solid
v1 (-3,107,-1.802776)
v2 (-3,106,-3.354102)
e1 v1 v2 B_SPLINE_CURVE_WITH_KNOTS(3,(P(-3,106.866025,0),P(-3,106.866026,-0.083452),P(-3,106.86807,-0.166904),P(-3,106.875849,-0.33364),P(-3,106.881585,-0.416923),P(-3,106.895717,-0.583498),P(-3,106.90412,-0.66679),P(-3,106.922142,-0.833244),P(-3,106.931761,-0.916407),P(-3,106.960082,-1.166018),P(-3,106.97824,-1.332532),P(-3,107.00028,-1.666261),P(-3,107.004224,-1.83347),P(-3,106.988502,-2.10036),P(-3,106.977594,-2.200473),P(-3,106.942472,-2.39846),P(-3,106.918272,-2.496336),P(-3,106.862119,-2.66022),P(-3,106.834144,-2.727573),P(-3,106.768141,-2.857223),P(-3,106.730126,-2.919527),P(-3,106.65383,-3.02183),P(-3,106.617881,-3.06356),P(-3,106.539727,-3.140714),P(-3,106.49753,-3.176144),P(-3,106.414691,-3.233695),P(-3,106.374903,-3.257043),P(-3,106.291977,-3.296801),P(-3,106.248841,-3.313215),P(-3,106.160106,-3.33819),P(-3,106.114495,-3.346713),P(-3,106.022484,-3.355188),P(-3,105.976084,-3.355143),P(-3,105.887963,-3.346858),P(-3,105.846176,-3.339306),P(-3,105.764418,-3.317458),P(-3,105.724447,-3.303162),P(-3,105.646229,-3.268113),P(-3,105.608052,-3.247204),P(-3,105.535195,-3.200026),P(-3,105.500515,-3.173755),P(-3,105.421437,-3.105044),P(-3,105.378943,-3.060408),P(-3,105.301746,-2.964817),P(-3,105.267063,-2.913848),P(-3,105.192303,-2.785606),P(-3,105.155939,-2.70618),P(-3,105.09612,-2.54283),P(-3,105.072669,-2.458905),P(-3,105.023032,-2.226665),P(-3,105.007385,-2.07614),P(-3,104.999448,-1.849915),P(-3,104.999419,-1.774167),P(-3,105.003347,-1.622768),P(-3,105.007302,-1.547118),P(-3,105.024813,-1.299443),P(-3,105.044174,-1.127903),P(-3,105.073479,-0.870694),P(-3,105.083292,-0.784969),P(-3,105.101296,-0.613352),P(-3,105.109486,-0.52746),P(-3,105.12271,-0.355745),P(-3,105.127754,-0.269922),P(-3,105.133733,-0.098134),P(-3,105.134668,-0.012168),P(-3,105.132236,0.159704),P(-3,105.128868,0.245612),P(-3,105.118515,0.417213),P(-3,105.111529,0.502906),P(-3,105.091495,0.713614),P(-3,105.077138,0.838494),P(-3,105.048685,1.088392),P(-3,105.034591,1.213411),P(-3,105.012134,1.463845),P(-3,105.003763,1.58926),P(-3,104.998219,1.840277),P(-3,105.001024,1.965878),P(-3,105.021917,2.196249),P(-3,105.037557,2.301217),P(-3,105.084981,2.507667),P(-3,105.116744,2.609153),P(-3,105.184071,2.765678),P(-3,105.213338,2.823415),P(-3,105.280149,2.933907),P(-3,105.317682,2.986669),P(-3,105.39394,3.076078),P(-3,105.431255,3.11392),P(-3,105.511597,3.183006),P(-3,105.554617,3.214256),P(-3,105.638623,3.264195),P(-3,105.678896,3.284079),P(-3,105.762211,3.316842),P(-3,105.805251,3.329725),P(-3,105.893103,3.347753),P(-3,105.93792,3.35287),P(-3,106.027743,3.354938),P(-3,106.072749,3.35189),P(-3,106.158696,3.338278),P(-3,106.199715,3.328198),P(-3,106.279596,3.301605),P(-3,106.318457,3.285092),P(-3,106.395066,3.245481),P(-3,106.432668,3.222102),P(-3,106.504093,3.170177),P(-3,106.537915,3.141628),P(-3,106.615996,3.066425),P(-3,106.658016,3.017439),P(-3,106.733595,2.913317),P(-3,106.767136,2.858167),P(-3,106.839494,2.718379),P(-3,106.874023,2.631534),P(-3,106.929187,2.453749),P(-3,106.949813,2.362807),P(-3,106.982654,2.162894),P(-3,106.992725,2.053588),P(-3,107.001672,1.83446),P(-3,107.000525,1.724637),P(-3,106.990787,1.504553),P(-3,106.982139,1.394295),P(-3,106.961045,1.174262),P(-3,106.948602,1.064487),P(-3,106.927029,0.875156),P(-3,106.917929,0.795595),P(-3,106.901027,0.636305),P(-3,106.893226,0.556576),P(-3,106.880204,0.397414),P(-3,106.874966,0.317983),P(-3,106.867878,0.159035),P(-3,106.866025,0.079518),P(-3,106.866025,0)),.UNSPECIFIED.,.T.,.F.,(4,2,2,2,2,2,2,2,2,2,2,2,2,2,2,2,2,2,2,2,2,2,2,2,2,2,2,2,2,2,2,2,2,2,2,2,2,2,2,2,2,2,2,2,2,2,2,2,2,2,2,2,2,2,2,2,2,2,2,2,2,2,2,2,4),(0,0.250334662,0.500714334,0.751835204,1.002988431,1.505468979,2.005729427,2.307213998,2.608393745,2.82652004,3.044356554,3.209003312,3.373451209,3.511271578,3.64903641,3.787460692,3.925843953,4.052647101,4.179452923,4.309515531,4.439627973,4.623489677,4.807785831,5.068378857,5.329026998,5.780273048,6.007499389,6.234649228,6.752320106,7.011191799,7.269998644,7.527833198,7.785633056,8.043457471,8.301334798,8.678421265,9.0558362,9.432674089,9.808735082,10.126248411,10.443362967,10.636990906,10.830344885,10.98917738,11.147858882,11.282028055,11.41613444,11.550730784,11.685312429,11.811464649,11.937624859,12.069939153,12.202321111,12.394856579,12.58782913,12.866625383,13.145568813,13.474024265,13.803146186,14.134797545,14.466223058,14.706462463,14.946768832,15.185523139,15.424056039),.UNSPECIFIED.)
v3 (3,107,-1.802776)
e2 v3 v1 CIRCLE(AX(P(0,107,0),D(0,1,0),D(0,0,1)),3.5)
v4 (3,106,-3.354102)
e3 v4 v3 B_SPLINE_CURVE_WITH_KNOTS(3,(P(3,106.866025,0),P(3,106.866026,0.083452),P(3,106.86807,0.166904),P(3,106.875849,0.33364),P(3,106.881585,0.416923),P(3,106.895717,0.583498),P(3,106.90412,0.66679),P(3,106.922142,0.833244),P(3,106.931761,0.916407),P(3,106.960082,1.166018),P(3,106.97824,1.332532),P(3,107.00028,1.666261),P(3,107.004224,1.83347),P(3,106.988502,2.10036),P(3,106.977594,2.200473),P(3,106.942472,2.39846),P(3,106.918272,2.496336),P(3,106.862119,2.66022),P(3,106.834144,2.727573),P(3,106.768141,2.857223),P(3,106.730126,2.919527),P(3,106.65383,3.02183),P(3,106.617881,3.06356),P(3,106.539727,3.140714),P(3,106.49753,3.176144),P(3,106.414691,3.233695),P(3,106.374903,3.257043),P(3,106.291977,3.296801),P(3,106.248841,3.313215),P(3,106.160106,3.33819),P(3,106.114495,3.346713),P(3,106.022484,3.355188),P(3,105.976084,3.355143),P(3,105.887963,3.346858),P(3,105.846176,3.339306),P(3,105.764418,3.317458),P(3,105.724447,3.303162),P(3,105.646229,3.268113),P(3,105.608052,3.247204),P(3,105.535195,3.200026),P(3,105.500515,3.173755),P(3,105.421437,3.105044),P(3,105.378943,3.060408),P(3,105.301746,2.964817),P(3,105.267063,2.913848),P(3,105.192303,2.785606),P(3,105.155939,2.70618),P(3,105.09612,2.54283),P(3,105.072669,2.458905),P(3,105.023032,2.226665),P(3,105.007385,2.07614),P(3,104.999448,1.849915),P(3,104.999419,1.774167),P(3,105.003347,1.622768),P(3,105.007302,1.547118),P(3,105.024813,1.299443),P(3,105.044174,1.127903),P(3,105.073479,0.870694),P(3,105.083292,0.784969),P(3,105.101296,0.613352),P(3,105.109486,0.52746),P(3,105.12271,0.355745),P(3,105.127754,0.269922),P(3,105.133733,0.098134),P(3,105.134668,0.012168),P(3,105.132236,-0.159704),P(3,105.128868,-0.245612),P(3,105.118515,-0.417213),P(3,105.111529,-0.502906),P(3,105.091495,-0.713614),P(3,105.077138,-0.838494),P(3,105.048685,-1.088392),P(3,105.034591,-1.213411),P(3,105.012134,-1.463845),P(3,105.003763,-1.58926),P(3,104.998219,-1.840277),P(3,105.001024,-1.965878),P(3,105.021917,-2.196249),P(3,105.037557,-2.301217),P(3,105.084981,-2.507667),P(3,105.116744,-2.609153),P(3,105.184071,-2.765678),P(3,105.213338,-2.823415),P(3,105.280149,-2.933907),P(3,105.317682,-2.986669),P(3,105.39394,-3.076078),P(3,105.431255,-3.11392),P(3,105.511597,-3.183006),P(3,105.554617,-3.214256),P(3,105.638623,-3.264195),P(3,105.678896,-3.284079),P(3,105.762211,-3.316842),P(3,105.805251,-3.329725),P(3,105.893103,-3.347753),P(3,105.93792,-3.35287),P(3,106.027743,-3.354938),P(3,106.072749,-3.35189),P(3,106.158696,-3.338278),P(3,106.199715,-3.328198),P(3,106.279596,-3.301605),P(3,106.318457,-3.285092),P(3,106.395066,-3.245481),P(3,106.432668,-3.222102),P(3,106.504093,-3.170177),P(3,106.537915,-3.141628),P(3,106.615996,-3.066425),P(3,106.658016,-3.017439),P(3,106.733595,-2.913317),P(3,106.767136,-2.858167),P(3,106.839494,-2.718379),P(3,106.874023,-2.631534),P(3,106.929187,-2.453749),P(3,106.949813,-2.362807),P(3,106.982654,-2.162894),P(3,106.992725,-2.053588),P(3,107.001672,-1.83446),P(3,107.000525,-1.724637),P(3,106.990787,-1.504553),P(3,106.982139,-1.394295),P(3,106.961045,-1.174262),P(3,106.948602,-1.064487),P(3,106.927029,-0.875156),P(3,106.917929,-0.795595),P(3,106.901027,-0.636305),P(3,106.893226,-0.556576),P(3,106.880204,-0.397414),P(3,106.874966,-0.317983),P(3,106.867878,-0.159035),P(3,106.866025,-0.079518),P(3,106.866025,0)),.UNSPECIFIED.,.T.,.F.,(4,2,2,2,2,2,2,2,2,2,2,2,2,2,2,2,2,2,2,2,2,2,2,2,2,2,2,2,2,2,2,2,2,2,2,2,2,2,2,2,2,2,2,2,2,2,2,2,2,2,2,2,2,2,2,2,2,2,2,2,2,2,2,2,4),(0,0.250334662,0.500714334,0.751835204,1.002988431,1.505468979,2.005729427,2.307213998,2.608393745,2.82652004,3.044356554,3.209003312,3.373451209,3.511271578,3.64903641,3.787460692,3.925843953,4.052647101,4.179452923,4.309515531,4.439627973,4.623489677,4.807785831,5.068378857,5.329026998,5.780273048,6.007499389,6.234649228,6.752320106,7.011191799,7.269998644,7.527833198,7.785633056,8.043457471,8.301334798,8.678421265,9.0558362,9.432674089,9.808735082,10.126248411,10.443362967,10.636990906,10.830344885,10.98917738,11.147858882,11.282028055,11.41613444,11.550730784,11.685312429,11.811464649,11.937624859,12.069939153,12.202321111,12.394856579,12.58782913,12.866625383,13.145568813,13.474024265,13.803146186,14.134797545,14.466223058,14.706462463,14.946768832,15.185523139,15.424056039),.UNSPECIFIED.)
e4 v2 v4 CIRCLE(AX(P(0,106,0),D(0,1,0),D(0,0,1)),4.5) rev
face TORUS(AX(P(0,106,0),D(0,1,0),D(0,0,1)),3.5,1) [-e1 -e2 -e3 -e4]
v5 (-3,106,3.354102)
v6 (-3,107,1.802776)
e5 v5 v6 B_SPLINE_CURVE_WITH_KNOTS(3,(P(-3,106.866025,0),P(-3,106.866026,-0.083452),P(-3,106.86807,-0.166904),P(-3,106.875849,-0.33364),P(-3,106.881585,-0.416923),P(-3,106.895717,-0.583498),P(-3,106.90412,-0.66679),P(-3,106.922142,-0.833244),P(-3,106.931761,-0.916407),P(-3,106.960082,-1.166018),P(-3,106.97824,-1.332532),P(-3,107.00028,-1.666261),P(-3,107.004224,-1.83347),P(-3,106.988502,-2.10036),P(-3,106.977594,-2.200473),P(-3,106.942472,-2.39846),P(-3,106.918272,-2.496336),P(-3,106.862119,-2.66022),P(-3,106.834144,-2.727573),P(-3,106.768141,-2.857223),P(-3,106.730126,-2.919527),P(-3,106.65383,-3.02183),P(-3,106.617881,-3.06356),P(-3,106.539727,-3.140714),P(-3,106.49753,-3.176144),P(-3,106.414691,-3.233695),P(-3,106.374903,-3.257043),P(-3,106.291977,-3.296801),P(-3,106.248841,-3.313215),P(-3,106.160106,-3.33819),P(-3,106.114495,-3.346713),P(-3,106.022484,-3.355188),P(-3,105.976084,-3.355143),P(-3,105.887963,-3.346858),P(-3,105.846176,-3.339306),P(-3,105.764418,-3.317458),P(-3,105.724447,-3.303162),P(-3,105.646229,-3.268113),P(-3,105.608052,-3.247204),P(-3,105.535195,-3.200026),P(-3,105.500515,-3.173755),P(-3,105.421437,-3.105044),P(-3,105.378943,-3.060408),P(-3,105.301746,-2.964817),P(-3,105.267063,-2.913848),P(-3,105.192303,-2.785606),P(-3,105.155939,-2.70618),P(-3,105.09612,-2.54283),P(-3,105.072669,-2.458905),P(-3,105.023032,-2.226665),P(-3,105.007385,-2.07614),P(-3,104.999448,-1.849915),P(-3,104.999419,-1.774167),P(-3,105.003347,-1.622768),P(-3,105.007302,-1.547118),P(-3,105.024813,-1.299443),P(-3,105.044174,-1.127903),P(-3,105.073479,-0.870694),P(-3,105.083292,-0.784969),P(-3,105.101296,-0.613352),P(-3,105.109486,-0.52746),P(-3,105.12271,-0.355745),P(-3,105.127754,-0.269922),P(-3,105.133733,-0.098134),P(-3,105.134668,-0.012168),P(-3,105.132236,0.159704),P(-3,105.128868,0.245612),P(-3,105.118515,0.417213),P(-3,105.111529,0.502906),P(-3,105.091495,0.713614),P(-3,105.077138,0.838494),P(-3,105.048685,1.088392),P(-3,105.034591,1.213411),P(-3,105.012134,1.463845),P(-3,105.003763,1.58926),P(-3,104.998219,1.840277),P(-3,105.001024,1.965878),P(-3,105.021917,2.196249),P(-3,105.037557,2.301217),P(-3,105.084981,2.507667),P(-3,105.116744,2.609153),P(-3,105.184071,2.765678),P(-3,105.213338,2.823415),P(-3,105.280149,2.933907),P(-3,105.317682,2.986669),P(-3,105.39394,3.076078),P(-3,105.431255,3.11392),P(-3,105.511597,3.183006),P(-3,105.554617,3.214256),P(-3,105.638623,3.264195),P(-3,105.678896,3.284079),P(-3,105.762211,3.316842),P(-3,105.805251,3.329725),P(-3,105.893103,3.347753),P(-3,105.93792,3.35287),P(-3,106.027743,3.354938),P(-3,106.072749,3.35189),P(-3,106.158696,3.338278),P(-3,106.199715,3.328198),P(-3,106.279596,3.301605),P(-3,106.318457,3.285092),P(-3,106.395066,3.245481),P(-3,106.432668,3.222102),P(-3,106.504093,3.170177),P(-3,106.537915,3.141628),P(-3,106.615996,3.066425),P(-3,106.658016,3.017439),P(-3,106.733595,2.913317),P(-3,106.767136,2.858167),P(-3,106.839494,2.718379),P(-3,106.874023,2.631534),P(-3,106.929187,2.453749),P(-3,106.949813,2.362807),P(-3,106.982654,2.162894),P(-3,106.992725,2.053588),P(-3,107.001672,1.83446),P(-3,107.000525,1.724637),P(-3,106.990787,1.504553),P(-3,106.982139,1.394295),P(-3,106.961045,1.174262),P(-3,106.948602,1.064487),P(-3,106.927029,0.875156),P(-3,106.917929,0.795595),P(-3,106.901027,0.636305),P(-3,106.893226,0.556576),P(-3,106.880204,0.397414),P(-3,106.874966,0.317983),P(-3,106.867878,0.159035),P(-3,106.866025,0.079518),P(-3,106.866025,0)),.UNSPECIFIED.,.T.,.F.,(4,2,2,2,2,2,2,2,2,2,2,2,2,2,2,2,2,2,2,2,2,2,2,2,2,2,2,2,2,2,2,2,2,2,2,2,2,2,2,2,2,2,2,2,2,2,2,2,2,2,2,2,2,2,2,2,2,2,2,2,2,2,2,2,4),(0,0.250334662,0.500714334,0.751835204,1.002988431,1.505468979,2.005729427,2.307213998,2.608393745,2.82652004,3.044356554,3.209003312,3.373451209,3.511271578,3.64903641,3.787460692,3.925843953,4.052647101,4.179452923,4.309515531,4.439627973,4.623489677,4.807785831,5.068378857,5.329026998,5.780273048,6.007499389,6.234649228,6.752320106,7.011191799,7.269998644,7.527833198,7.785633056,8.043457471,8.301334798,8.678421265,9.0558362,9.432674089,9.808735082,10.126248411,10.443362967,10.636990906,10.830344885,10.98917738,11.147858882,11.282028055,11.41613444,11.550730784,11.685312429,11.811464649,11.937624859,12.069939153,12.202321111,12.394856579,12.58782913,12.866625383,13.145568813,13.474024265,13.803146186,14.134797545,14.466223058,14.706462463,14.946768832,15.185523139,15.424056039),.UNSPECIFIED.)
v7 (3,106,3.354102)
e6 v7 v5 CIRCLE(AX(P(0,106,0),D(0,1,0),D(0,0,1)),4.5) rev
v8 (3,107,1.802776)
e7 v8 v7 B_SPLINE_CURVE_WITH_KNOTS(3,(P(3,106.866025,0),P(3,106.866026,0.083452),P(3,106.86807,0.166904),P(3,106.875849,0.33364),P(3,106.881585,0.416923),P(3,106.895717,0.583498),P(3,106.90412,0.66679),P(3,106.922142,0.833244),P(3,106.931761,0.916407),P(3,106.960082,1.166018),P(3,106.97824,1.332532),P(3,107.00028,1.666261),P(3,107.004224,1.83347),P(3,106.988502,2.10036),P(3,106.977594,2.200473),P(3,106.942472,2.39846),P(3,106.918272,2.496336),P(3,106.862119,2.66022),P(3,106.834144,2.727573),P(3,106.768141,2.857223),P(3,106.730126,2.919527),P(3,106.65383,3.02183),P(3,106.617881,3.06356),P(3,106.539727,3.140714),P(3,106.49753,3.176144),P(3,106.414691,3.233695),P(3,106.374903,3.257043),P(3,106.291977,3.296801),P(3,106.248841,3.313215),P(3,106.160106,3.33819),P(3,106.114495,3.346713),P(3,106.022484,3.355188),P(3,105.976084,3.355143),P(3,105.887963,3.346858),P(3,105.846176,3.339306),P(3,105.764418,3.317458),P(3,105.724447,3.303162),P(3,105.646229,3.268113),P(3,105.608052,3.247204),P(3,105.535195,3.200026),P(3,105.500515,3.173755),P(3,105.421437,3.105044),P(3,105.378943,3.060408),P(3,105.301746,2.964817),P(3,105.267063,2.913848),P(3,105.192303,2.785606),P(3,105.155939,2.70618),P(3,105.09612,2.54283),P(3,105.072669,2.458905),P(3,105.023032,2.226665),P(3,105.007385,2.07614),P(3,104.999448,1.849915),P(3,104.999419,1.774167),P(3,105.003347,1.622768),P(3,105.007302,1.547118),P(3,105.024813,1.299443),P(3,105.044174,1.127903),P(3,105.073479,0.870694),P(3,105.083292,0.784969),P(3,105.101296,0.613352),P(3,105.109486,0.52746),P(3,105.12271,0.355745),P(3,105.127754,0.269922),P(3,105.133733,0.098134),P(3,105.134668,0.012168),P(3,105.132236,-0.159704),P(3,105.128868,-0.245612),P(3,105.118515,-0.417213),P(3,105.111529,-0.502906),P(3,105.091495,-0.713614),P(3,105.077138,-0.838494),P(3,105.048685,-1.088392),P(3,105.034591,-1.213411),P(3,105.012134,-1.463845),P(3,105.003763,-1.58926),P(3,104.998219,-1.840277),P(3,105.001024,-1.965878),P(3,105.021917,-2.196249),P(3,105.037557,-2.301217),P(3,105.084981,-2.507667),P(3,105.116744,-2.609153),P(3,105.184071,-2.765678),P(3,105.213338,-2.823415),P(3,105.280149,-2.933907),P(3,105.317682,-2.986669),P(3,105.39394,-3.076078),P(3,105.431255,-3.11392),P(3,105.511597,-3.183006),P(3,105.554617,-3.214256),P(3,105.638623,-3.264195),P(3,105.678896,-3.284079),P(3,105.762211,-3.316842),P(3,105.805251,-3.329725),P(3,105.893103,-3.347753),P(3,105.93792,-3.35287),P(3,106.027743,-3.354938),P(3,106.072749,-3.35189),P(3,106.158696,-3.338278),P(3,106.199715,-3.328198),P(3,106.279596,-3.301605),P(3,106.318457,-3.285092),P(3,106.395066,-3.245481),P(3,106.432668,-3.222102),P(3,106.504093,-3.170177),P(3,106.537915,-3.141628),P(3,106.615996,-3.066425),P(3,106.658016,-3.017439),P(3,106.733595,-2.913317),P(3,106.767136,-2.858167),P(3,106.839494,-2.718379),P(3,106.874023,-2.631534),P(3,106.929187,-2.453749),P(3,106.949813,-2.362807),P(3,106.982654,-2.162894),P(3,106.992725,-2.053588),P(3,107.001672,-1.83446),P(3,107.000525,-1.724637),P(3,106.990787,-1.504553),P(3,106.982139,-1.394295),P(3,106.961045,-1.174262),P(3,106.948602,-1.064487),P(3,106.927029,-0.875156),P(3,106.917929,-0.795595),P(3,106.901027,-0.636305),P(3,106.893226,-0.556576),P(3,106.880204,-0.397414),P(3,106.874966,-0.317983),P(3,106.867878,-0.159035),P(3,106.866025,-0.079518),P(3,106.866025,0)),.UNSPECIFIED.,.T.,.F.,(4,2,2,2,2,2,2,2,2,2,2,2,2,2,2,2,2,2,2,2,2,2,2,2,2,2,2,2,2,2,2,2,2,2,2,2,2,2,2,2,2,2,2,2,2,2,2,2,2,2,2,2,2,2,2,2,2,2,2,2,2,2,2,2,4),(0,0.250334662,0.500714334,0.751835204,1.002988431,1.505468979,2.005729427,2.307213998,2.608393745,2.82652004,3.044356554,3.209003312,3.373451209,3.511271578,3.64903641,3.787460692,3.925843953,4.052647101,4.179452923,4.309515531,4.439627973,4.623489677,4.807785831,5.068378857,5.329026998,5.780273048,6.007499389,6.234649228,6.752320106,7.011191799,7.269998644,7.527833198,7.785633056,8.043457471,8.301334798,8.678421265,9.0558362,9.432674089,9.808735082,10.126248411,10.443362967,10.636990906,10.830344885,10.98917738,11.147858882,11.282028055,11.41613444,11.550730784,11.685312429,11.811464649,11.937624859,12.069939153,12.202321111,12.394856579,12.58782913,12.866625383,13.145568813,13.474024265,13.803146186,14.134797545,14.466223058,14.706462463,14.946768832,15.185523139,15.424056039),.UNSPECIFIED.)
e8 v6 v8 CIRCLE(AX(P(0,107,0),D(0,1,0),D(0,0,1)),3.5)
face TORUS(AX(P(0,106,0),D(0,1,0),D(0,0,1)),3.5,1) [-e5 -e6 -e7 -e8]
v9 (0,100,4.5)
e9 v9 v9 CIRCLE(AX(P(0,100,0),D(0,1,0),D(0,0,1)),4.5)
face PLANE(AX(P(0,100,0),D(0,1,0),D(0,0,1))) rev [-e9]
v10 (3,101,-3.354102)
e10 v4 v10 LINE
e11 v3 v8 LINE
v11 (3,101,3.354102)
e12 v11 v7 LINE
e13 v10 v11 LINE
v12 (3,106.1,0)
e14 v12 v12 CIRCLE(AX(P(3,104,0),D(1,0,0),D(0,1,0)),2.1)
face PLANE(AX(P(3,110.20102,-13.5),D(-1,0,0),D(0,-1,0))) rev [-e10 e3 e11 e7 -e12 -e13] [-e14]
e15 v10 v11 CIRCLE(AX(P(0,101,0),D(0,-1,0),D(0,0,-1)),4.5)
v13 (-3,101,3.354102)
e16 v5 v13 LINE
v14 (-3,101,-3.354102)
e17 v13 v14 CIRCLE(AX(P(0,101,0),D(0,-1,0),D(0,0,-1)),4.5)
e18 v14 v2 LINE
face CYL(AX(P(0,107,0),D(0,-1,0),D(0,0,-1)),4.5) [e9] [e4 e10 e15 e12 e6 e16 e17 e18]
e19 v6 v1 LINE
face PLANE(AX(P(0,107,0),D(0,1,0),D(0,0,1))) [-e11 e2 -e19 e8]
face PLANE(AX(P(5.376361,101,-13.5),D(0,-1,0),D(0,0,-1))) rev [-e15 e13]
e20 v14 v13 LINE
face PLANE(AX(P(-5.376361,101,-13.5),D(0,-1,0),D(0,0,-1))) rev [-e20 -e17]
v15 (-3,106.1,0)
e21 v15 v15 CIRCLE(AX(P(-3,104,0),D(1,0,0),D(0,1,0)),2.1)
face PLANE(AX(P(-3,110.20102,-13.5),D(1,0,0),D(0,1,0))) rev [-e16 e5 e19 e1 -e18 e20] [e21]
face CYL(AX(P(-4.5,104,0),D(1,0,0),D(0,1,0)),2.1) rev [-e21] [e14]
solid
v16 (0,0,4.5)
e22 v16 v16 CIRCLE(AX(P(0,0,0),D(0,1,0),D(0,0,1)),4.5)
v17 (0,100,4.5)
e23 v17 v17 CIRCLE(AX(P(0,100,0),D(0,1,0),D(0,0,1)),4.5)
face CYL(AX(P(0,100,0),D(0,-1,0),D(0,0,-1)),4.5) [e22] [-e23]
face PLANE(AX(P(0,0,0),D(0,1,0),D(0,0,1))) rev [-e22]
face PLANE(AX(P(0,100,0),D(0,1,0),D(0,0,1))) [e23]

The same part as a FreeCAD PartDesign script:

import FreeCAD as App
import Part
import Sketcher

V = App.Vector
Q = App.Units.Quantity


def edges_at(feature, points):
    """Names of the edges that pass closest to the given points."""
    edges = feature.Shape.Edges
    near = lambda p: min(range(len(edges)), key=lambda i: edges[i].distToShape(Part.Vertex(*p))[0])
    return sorted({f"Edge{near(p) + 1}" for p in points})


def add_polygon(sketch, points):
    """Adds a closed chain of lines whose ends are joined by coincident constraints."""
    first, n = sketch.GeometryCount, len(points)
    for a, b in zip(points, points[1:] + points[:1]):
        sketch.addGeometry(Part.LineSegment(App.Vector(*a, 0), App.Vector(*b, 0)), False)
    for i in range(n):
        sketch.addConstraint(Sketcher.Constraint("Coincident", first + i, 2, first + (i + 1) % n, 1))

doc = App.newDocument("Part")
params = doc.addObject("Spreadsheet::Sheet", "Params")
for row, (alias, value) in enumerate([
    ("sketch1_diameter", "9 mm"),
    ("pad1_length", "100 mm"),
    ("sketch2_diameter", "9 mm"),
    ("pad2_length", "7 mm"),
    ("fillet_radius", "1 mm"),
    ("pocket1_length", "27 mm"),
    ("sketch4_diameter", "4.2 mm"),
], start=1):
    params.set(f"A{row}", alias)
    params.set(f"B{row}", "=" + value)
    params.setAlias(f"B{row}", alias)

body = doc.addObject("PartDesign::Body", "Body")

# Sketch on XZ plane
sketch1 = body.newObject("Sketcher::SketchObject", "Sketch")
sketch1.AttachmentSupport = (doc.getObject("XZ_Plane"), [""])
sketch1.MapMode = "FlatFace"
sketch1.addGeometry(Part.Circle(V(0, 0, 0), V(0, 0, 1), 4.5), False)
sketch1.addConstraint([
    Sketcher.Constraint("Coincident", 0, 3, -1, 1),
    Sketcher.Constraint("Diameter", 0, Q("9 mm")),
])
sketch1.setExpression("Constraints[1]", "Params.sketch1_diameter")
pad1 = body.newObject("PartDesign::Pad", "Pad")
pad1.Profile = sketch1
pad1.setExpression("Length", "Params.pad1_length")
pad1.Reversed = True
body2 = doc.addObject("PartDesign::Body", "Body001")

# Sketch on XZ plane
sketch2 = body2.newObject("Sketcher::SketchObject", "Sketch001")
sketch2.AttachmentSupport = (doc.getObject("XZ_Plane001"), [""])
sketch2.MapMode = "FlatFace"
sketch2.AttachmentOffset = App.Placement(V(0, 0, -100), App.Rotation())
sketch2.addGeometry(Part.Circle(V(0, 0, 0), V(0, 0, 1), 4.5), False)
sketch2.addConstraint([
    Sketcher.Constraint("Coincident", 0, 3, -1, 1),
    Sketcher.Constraint("Diameter", 0, Q("9 mm")),
])
sketch2.setExpression("Constraints[1]", "Params.sketch2_diameter")
pad2 = body2.newObject("PartDesign::Pad", "Pad001")
pad2.Profile = sketch2
pad2.setExpression("Length", "Params.pad2_length")
pad2.Reversed = True
doc.recompute()

fillet = body2.newObject("PartDesign::Fillet", "Fillet")
fillet.Base = (pad2, edges_at(pad2, [(0, 107, -4.5)]))
fillet.setExpression("Radius", "Params.fillet_radius")

# Sketch on XY plane
sketch3 = body2.newObject("Sketcher::SketchObject", "Sketch002")
sketch3.AttachmentSupport = (doc.getObject("XY_Plane001"), [""])
sketch3.MapMode = "FlatFace"
add_polygon(sketch3, [(-5.376361, 110.20102), (-5.376361, 101), (-3, 101), (-3, 110.20102)])  # lines 0-3
add_polygon(sketch3, [(3, 110.20102), (3, 101), (5.376361, 101), (5.376361, 110.20102)])  # lines 4-7
sketch3.addConstraint([
    Sketcher.Constraint("Vertical", 0),
    Sketcher.Constraint("Horizontal", 1),
    Sketcher.Constraint("Vertical", 2),
    Sketcher.Constraint("Horizontal", 3),
    Sketcher.Constraint("Vertical", 4),
    Sketcher.Constraint("Horizontal", 5),
    Sketcher.Constraint("Vertical", 6),
    Sketcher.Constraint("Horizontal", 7),
    Sketcher.Constraint("Symmetric", 1, 2, 4, 2, -2),
    Sketcher.Constraint("Symmetric", 3, 2, 6, 2, -2),
    Sketcher.Constraint("DistanceY", -1, 1, 0, 2, Q("101 mm")),
    Sketcher.Constraint("DistanceX", 1, 2, -1, 1, Q("3 mm")),
    Sketcher.Constraint("DistanceX", 1, 1, 1, 2, Q("2.376361 mm")),
    Sketcher.Constraint("DistanceY", 0, 2, 0, 1, Q("9.20102 mm")),
])
pocket1 = body2.newObject("PartDesign::Pocket", "Pocket")
pocket1.Profile = sketch3
pocket1.setExpression("Length", "Params.pocket1_length")
pocket1.Midplane = True

# Sketch on YZ plane
sketch4 = body2.newObject("Sketcher::SketchObject", "Sketch003")
sketch4.AttachmentSupport = (doc.getObject("YZ_Plane001"), [""])
sketch4.MapMode = "FlatFace"
sketch4.AttachmentOffset = App.Placement(V(0, 0, 3), App.Rotation())
sketch4.addGeometry(Part.Circle(V(104, 0, 0), V(0, 0, 1), 2.1), False)
sketch4.addConstraint([
    Sketcher.Constraint("PointOnObject", 0, 3, -1),
    Sketcher.Constraint("Diameter", 0, Q("4.2 mm")),
    Sketcher.Constraint("DistanceX", -1, 1, 0, 3, Q("104 mm")),
])
sketch4.setExpression("Constraints[1]", "Params.sketch4_diameter")
pocket2 = body2.newObject("PartDesign::Pocket", "Pocket001")
pocket2.Profile = sketch4
pocket2.Type = "ThroughAll"

doc.recompute()
